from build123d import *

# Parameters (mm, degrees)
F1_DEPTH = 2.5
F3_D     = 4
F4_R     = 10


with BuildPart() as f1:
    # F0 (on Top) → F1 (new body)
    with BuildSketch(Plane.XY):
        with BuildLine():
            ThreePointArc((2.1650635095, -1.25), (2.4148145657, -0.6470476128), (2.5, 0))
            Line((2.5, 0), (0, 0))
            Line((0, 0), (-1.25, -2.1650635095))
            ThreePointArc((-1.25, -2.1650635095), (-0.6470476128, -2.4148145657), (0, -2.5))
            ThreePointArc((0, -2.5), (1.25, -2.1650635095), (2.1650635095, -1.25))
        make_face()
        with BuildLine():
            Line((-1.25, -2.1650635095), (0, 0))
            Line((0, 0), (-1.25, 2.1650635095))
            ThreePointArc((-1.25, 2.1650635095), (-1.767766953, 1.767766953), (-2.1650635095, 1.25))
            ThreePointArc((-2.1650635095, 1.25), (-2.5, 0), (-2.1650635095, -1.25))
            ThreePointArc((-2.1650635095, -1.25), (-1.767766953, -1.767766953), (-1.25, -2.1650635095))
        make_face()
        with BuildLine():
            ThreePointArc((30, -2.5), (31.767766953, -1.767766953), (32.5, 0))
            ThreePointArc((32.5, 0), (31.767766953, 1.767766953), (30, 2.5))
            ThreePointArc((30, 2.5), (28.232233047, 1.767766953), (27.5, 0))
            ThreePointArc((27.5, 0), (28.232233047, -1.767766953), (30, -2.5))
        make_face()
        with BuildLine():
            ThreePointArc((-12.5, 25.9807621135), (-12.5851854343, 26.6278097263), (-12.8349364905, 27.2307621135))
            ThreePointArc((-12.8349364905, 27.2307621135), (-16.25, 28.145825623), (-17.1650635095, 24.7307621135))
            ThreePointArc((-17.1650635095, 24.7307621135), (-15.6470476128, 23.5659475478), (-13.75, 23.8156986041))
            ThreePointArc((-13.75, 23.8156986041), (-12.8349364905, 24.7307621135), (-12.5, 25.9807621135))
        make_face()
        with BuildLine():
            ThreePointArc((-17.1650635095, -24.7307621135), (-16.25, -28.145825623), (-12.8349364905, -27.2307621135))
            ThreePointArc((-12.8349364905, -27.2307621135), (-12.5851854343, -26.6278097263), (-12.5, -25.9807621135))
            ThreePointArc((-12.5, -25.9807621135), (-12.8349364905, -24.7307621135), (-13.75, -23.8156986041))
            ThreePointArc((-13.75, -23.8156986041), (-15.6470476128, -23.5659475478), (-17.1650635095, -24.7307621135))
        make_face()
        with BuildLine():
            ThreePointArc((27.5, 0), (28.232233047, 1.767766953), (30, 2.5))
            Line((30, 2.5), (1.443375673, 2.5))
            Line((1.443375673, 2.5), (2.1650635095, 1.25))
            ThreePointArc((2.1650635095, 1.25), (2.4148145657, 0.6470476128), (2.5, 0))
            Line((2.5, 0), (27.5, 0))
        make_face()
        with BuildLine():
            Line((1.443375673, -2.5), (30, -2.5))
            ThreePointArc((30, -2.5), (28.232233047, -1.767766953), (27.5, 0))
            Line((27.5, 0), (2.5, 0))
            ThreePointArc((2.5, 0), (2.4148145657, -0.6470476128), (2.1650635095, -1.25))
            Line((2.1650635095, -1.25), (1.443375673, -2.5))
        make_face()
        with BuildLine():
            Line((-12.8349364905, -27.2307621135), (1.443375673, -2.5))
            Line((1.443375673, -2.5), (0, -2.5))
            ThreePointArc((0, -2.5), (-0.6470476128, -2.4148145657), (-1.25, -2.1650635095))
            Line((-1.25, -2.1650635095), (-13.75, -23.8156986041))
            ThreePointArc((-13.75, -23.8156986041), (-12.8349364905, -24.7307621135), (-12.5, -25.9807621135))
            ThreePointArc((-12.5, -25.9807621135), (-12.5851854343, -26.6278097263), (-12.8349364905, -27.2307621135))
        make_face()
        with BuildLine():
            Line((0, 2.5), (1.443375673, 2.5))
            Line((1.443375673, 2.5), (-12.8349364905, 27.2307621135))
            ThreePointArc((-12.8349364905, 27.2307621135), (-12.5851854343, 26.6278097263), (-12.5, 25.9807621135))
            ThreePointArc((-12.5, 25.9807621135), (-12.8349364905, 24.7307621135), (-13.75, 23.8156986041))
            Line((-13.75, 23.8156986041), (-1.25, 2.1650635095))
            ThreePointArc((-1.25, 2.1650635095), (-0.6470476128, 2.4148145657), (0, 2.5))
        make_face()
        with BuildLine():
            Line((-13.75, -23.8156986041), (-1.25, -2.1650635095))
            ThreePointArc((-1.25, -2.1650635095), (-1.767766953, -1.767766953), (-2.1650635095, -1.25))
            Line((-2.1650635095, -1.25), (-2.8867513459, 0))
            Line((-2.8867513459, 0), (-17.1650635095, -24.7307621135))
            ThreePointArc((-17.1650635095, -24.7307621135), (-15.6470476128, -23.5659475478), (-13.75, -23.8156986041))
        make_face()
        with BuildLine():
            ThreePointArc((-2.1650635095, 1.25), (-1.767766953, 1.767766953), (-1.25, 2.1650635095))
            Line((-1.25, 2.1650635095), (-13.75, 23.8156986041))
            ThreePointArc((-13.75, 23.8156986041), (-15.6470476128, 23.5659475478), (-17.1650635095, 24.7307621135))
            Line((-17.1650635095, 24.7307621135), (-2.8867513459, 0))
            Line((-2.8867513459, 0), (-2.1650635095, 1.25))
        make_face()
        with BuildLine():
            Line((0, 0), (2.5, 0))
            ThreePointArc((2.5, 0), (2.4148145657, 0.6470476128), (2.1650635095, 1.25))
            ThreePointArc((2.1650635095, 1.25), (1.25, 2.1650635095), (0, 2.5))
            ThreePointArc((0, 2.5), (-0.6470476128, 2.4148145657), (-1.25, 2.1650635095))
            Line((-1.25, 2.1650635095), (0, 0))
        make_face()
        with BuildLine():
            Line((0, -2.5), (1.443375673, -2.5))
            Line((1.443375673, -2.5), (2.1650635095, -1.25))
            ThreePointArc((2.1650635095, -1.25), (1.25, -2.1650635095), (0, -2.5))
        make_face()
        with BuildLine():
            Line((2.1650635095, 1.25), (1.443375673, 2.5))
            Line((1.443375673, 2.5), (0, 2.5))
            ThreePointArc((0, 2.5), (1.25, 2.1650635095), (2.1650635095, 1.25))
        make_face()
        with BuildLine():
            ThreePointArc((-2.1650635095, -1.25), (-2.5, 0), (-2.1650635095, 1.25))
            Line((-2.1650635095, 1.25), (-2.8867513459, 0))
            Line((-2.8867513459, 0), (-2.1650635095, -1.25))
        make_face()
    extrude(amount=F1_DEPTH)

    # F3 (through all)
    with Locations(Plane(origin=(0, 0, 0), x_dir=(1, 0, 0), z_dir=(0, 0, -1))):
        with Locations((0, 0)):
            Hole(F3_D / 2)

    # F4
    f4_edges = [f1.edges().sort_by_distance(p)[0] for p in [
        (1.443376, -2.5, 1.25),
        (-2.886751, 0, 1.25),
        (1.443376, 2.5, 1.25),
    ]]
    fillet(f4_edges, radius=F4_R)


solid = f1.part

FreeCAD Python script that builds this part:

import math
import FreeCAD as App
import Part
import Sketcher

V = App.Vector
Q = App.Units.Quantity


def edges_at(feature, points):
    """Names of the edges that pass closest to the given points."""
    edges = feature.Shape.Edges
    near = lambda p: min(range(len(edges)), key=lambda i: edges[i].distToShape(Part.Vertex(*p))[0])
    return sorted({f"Edge{near(p) + 1}" for p in points})

doc = App.newDocument("Part")
body = doc.addObject("PartDesign::Body", "Body")

sketch1 = body.newObject("Sketcher::SketchObject", "Sketch")
sketch1.AttachmentSupport = (doc.getObject("XY_Plane"), [""])
sketch1.MapMode = "FlatFace"
sketch1.addGeometry(Part.LineSegment(V(-17.2, 24.7, 0), V(-2.9, 0, 0)), False)
sketch1.addGeometry(Part.LineSegment(V(-2.9, 0, 0), V(-17.2, -24.7, 0)), False)
sketch1.addGeometry(Part.ArcOfCircle(Part.Circle(V(-15, -26, 0), V(0, 0, 1), 2.5), math.radians(150), math.radians(330)), False)
sketch1.addGeometry(Part.LineSegment(V(-12.8, -27.2, 0), V(1.4, -2.5, 0)), False)
sketch1.addGeometry(Part.LineSegment(V(1.4, -2.5, 0), V(30, -2.5, 0)), False)
sketch1.addGeometry(Part.ArcOfCircle(Part.Circle(V(30, 0, 0), V(0, 0, 1), 2.5), math.radians(-90), math.radians(0)), False)
sketch1.addGeometry(Part.ArcOfCircle(Part.Circle(V(30, 0, 0), V(0, 0, 1), 2.5), math.radians(0), math.radians(90)), False)
sketch1.addGeometry(Part.LineSegment(V(30, 2.5, 0), V(1.4, 2.5, 0)), False)
sketch1.addGeometry(Part.LineSegment(V(1.4, 2.5, 0), V(-12.8, 27.2, 0)), False)
sketch1.addGeometry(Part.ArcOfCircle(Part.Circle(V(-15, 26, 0), V(0, 0, 1), 2.5), math.radians(30), math.radians(210)), False)
sketch1.addConstraint(Sketcher.Constraint("Coincident", 0, 2, 1, 1))
sketch1.addConstraint(Sketcher.Constraint("Tangent", 1, 2, 2, 1))
sketch1.addConstraint(Sketcher.Constraint("Tangent", 2, 2, 3, 1))
sketch1.addConstraint(Sketcher.Constraint("Coincident", 3, 2, 4, 1))
sketch1.addConstraint(Sketcher.Constraint("Tangent", 4, 2, 5, 1))
sketch1.addConstraint(Sketcher.Constraint("Tangent", 5, 2, 6, 1))
sketch1.addConstraint(Sketcher.Constraint("Tangent", 6, 2, 7, 1))
sketch1.addConstraint(Sketcher.Constraint("Coincident", 7, 2, 8, 1))
sketch1.addConstraint(Sketcher.Constraint("Tangent", 8, 2, 9, 1))
sketch1.addConstraint(Sketcher.Constraint("Tangent", 9, 2, 0, 1))
sketch1.addConstraint(Sketcher.Constraint("Horizontal", 4))
sketch1.addConstraint(Sketcher.Constraint("Horizontal", 7))
sketch1.addConstraint(Sketcher.Constraint("Equal", 2, 5))
sketch1.addConstraint(Sketcher.Constraint("Equal", 5, 6))
sketch1.addConstraint(Sketcher.Constraint("Equal", 6, 9))
sketch1.addConstraint(Sketcher.Constraint("Symmetric", 2, 3, 9, 3, -1))
sketch1.addConstraint(Sketcher.Constraint("Symmetric", 3, 2, 7, 2, -1))
sketch1.addConstraint(Sketcher.Constraint("PointOnObject", 0, 2, -1))
sketch1.addConstraint(Sketcher.Constraint("PointOnObject", 5, 2, -1))
sketch1.addConstraint(Sketcher.Constraint("Parallel", 1, 3))
sketch1.addConstraint(Sketcher.Constraint("Equal", 1, 3))
sketch1.addConstraint(Sketcher.Constraint("Radius", 2, Q("2.5 mm")))
sketch1.addConstraint(Sketcher.Constraint("DistanceX", 2, 3, -1, 1, Q("15 mm")))
sketch1.addConstraint(Sketcher.Constraint("DistanceX", -1, 1, 5, 3, Q("30 mm")))
sketch1.addConstraint(Sketcher.Constraint("DistanceX", 4, 1, 4, 2, Q("28.556624 mm")))
pad1 = body.newObject("PartDesign::Pad", "Pad")
pad1.Profile = sketch1
pad1.Length = 2.5

sketch2 = body.newObject("Sketcher::SketchObject", "Sketch001")
sketch2.AttachmentSupport = (doc.getObject("XY_Plane"), [""])
sketch2.MapMode = "FlatFace"
sketch2.addGeometry(Part.Circle(V(0, 0, 0), V(0, 0, 1), 2), False)
sketch2.addConstraint(Sketcher.Constraint("Coincident", 0, 3, -1, 1))
sketch2.addConstraint(Sketcher.Constraint("Diameter", 0, Q("4 mm")))
doc.recompute()
hole = body.newObject("PartDesign::Hole", "Hole")
hole.Profile = sketch2
hole.ThreadType = "None"
hole.Diameter = 4
hole.DepthType = "ThroughAll"
hole.Reversed = True
doc.recompute()

fillet = body.newObject("PartDesign::Fillet", "Fillet")
fillet.Base = (hole, edges_at(hole, [(1.443, -2.5, 1.25), (-2.887, 0, 1.25), (1.443, 2.5, 1.25)]))
fillet.Radius = 10

doc.recompute()
